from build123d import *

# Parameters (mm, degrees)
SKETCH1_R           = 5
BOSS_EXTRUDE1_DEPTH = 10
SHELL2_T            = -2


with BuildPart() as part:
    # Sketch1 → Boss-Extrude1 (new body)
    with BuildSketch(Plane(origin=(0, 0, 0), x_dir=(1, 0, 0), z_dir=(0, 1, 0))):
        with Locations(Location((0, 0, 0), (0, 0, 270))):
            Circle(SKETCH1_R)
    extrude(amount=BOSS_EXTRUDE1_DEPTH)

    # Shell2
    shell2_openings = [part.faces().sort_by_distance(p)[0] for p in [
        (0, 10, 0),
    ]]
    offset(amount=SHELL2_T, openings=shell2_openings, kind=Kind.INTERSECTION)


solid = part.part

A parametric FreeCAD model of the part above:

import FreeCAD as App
import Part
import Sketcher


def faces_at(feature, points):
    """Names of the faces that lie closest to the given points."""
    faces = feature.Shape.Faces
    near = lambda p: min(range(len(faces)), key=lambda i: faces[i].distToShape(Part.Vertex(*p))[0])
    return sorted({f"Face{near(p) + 1}" for p in points})

doc = App.newDocument("Part")
params = doc.addObject("Spreadsheet::Sheet", "Params")
for row, (alias, value) in enumerate([
    ("sketch1_diameter", "10 mm"),
    ("pad1_length", "10 mm"),
    ("thickness_wall", "2 mm"),
], start=1):
    params.set(f"A{row}", alias)
    params.set(f"B{row}", "=" + value)
    params.setAlias(f"B{row}", alias)

body = doc.addObject("PartDesign::Body", "Body")

sketch1 = body.newObject("Sketcher::SketchObject", "Sketch")
sketch1.AttachmentSupport = (doc.getObject("XZ_Plane"), [""])
sketch1.MapMode = "FlatFace"
sketch1.addGeometry(Part.Circle(App.Vector(0, 0, 0), App.Vector(0, 0, 1), 5), False)
sketch1.addConstraint(Sketcher.Constraint("Coincident", 0, 3, -1, 1))
sketch1.addConstraint(Sketcher.Constraint("Diameter", 0, 10.0))
sketch1.setExpression("Constraints[1]", "Params.sketch1_diameter")
pad1 = body.newObject("PartDesign::Pad", "Pad")
pad1.Profile = sketch1
pad1.setExpression("Length", "Params.pad1_length")
pad1.Reversed = True
doc.recompute()

thickness = body.newObject("PartDesign::Thickness", "Thickness")
thickness.Base = (pad1, faces_at(pad1, [(0, 10, 0)]))
thickness.setExpression("Value", "Params.thickness_wall")
thickness.Reversed = True
thickness.Join = "Intersection"

doc.recompute()
